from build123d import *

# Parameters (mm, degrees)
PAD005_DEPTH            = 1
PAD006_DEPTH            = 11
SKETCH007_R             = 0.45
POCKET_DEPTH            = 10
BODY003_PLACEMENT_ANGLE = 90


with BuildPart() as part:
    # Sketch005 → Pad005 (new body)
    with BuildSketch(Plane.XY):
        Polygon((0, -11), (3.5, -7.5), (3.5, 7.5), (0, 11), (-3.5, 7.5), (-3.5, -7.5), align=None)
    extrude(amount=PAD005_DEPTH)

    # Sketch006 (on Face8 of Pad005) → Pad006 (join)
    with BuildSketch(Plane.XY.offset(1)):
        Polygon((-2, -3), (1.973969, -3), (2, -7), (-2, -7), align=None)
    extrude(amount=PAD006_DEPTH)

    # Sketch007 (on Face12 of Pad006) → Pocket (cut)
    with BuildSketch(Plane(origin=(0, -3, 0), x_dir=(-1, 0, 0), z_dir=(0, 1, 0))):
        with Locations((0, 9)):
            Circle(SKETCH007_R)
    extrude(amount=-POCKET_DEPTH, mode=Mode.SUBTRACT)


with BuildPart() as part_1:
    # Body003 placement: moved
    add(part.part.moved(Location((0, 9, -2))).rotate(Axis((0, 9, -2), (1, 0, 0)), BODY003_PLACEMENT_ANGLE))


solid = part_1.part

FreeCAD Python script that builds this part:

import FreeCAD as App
import Part
import Sketcher
from FreeCAD import Vector
Q = App.Units.Quantity


def add_polygon(sketch, points):
    """Adds a closed chain of lines whose ends are joined by coincident constraints."""
    first, n = sketch.GeometryCount, len(points)
    for a, b in zip(points, points[1:] + points[:1]):
        sketch.addGeometry(Part.LineSegment(App.Vector(*a, 0), App.Vector(*b, 0)), False)
    for i in range(n):
        sketch.addConstraint(Sketcher.Constraint("Coincident", first + i, 2, first + (i + 1) % n, 1))

doc = App.newDocument("Part")
body = doc.addObject("PartDesign::Body", "Body")

sketch1 = body.newObject("Sketcher::SketchObject", "Sketch")
sketch1.AttachmentSupport = (doc.getObject("XY_Plane"), [""])
sketch1.MapMode = "FlatFace"
add_polygon(sketch1, [(0, -11), (3.5, -7.5), (3.5, 7.5), (0, 11), (-3.5, 7.5), (-3.5, -7.5)])
sketch1.addConstraint([
    Sketcher.Constraint("Vertical", 1),
    Sketcher.Constraint("Vertical", 4),
    Sketcher.Constraint("Symmetric", 0, 2, 3, 2, -1, 1),
    Sketcher.Constraint("Symmetric", 2, 2, 5, 2, -1, 1),
    Sketcher.Constraint("PointOnObject", 2, 2, -2),
    Sketcher.Constraint("Perpendicular", 0, 2),
    Sketcher.Constraint("Perpendicular", 3, 5),
    Sketcher.Constraint("Horizontal", 1, 2, 3, 2),
    Sketcher.Constraint("DistanceY", 1, 1, 1, 2, Q("15 mm")),
    Sketcher.Constraint("DistanceY", -1, 1, 2, 2, Q("11 mm")),
])
pad1 = body.newObject("PartDesign::Pad", "Pad")
pad1.Profile = sketch1
pad1.Length = 1

sketch2 = body.newObject("Sketcher::SketchObject", "Sketch001")
sketch2.AttachmentSupport = (doc.getObject("XY_Plane"), [""])
sketch2.MapMode = "FlatFace"
sketch2.AttachmentOffset = App.Placement(Vector(0, 0, 1), App.Rotation())
add_polygon(sketch2, [(1.973969, -3), (-2, -3), (-2, -7), (2, -7)])
sketch2.addConstraint([
    Sketcher.Constraint("Horizontal", 0),
    Sketcher.Constraint("Vertical", 1),
    Sketcher.Constraint("Horizontal", 2),
    Sketcher.Constraint("Equal", 2, 1),
    Sketcher.Constraint("DistanceX", 2, 1, 2, 2, Q("4 mm")),
    Sketcher.Constraint("DistanceX", 0, 2, -1, 1, Q("2 mm")),
    Sketcher.Constraint("DistanceY", 0, 2, -1, 1, Q("3 mm")),
    Sketcher.Constraint("DistanceX", 0, 2, 0, 1, Q("3.973969 mm")),
])
pad2 = body.newObject("PartDesign::Pad", "Pad001")
pad2.Profile = sketch2
pad2.Length = 11

sketch3 = body.newObject("Sketcher::SketchObject", "Sketch002")
sketch3.AttachmentSupport = (doc.getObject("XZ_Plane"), [""])
sketch3.MapMode = "FlatFace"
sketch3.AttachmentOffset = App.Placement(Vector(0, 0, 3), App.Rotation())
sketch3.addGeometry(Part.Circle(Vector(0, 9, 0), Vector(0, 0, 1), 0.45), False)
sketch3.addConstraint([
    Sketcher.Constraint("PointOnObject", 0, 3, -2),
    Sketcher.Constraint("Diameter", 0, Q("0.9 mm")),
    Sketcher.Constraint("DistanceY", -1, 1, 0, 3, Q("9 mm")),
])
pocket1 = body.newObject("PartDesign::Pocket", "Pocket")
pocket1.Profile = sketch3
pocket1.Length = 10
pocket1.Reversed = True
body2 = doc.addObject("PartDesign::Body", "Body001")
doc.recompute()

body.Placement = App.Placement(Vector(0, 9, -2), App.Rotation(Vector(1, 0, 0), 90))
boolean = body2.newObject("PartDesign::Boolean", "Boolean")
boolean.Type = "Fuse"
boolean.addObjects([body])

doc.recompute()
